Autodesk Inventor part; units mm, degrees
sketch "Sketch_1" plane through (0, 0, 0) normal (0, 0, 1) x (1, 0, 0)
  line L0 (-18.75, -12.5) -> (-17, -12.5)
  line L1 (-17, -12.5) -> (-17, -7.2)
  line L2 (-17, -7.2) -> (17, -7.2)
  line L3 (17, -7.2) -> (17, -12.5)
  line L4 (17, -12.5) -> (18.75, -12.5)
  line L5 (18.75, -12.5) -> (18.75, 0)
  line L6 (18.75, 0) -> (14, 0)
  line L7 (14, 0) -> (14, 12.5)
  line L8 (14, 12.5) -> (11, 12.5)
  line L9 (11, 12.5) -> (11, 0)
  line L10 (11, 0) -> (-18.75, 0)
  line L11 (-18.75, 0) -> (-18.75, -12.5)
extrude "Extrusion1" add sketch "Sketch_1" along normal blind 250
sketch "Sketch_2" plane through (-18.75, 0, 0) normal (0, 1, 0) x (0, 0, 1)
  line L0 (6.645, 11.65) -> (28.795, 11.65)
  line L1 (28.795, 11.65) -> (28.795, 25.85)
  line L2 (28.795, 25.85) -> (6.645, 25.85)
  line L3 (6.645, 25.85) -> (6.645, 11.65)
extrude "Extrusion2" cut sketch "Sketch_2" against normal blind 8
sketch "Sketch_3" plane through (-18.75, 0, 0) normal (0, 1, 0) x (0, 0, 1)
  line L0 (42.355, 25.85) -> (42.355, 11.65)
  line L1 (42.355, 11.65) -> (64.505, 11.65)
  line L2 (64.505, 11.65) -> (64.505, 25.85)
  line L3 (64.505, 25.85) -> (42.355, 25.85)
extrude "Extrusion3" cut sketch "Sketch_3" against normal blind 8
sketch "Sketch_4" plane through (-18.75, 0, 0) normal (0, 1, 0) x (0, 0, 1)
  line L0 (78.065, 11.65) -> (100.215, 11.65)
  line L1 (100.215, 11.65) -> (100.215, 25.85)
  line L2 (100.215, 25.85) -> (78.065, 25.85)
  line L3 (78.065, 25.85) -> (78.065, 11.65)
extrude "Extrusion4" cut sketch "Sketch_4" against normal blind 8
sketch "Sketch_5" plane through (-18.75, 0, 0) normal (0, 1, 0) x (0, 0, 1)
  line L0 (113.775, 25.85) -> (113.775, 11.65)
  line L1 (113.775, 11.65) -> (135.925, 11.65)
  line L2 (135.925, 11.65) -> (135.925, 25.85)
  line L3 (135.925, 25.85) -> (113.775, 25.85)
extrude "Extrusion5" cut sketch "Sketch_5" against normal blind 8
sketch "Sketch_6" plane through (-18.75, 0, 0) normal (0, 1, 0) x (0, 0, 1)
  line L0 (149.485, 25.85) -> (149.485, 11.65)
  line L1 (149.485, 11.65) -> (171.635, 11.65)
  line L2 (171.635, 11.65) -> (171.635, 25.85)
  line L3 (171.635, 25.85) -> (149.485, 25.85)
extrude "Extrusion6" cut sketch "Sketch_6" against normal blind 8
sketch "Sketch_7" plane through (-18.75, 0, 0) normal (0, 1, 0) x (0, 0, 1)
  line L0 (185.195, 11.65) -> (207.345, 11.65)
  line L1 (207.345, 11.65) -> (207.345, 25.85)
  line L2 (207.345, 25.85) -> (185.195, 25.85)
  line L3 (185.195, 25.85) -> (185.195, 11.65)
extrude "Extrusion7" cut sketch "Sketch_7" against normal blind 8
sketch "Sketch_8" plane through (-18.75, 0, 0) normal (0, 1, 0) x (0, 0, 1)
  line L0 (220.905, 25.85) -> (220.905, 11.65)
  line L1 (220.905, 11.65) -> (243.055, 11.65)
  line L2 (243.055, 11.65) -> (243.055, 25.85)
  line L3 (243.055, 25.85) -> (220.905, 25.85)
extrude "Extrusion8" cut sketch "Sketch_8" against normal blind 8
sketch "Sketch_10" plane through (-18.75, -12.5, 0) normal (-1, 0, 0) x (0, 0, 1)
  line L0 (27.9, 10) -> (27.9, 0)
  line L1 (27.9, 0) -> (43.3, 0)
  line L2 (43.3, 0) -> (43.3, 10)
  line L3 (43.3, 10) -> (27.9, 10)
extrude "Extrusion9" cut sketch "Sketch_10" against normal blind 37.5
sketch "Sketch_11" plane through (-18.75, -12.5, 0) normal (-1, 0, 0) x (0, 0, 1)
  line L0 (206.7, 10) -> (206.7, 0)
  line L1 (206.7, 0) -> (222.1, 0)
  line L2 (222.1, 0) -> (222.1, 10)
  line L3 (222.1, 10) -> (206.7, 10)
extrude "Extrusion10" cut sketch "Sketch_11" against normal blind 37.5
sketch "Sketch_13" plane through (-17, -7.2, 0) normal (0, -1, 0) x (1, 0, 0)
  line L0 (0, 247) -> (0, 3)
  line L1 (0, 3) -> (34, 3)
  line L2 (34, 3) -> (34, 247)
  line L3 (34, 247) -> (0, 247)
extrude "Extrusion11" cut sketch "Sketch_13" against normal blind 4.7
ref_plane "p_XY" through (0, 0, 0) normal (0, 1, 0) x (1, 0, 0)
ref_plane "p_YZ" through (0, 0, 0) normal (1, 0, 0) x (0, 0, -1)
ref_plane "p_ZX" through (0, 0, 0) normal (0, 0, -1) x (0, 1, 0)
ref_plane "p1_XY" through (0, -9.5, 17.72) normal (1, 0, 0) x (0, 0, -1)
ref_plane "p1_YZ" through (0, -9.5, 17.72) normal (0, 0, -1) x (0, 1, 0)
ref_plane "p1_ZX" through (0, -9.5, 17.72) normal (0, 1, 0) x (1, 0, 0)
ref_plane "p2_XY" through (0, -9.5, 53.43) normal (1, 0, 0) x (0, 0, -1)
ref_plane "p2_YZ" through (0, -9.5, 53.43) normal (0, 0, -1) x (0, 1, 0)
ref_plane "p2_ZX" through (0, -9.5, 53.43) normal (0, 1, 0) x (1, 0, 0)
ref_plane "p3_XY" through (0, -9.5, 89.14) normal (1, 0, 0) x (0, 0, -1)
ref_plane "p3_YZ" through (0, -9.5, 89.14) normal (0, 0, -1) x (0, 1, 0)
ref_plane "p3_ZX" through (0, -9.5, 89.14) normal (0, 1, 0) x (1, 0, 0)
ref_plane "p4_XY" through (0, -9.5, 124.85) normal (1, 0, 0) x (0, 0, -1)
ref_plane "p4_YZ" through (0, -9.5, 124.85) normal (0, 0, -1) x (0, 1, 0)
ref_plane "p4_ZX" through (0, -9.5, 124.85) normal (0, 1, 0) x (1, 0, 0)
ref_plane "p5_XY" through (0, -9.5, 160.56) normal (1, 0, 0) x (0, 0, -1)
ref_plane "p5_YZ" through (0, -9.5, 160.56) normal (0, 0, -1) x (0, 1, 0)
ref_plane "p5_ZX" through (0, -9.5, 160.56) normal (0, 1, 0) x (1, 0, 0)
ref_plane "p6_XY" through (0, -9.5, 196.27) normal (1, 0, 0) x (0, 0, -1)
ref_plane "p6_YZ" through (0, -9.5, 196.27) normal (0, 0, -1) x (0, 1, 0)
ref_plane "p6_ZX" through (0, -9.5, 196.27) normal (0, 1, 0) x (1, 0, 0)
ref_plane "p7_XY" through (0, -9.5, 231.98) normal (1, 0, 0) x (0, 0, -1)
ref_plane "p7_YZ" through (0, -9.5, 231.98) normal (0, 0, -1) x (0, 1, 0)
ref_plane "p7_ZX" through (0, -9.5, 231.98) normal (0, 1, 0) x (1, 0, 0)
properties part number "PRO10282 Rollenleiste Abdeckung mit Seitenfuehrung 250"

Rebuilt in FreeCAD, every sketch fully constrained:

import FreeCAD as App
import Part
import Sketcher
from FreeCAD import Vector
Q = App.Units.Quantity

doc = App.newDocument("Part")
body = doc.addObject("PartDesign::Body", "Body")

# Sketch on XY plane
sketch1 = body.newObject("Sketcher::SketchObject", "Sketch")
sketch1.AttachmentSupport = (doc.getObject("XY_Plane"), [""])
sketch1.MapMode = "FlatFace"
sketch1.addGeometry(Part.LineSegment(Vector(-18.8, 0, 0), Vector(-18.8, -12.5, 0)), False)
sketch1.addGeometry(Part.LineSegment(Vector(-18.8, -12.5, 0), Vector(-17, -12.5, 0)), False)
sketch1.addGeometry(Part.LineSegment(Vector(-17, -12.5, 0), Vector(-17, -7.2, 0)), False)
sketch1.addGeometry(Part.LineSegment(Vector(-17, -7.2, 0), Vector(17, -7.2, 0)), False)
sketch1.addGeometry(Part.LineSegment(Vector(17, -7.2, 0), Vector(17, -12.5, 0)), False)
sketch1.addGeometry(Part.LineSegment(Vector(17, -12.5, 0), Vector(18.8, -12.5, 0)), False)
sketch1.addGeometry(Part.LineSegment(Vector(18.8, -12.5, 0), Vector(18.8, 0, 0)), False)
sketch1.addGeometry(Part.LineSegment(Vector(18.8, 0, 0), Vector(14, 0, 0)), False)
sketch1.addGeometry(Part.LineSegment(Vector(14, 0, 0), Vector(14, 12.5, 0)), False)
sketch1.addGeometry(Part.LineSegment(Vector(14, 12.5, 0), Vector(11, 12.5, 0)), False)
sketch1.addGeometry(Part.LineSegment(Vector(11, 12.5, 0), Vector(11, 0, 0)), False)
sketch1.addGeometry(Part.LineSegment(Vector(11, 0, 0), Vector(-18.8, 0, 0)), False)
sketch1.addConstraint(Sketcher.Constraint("Coincident", 0, 2, 1, 1))
sketch1.addConstraint(Sketcher.Constraint("Coincident", 1, 2, 2, 1))
sketch1.addConstraint(Sketcher.Constraint("Coincident", 2, 2, 3, 1))
sketch1.addConstraint(Sketcher.Constraint("Coincident", 3, 2, 4, 1))
sketch1.addConstraint(Sketcher.Constraint("Coincident", 4, 2, 5, 1))
sketch1.addConstraint(Sketcher.Constraint("Coincident", 5, 2, 6, 1))
sketch1.addConstraint(Sketcher.Constraint("Coincident", 6, 2, 7, 1))
sketch1.addConstraint(Sketcher.Constraint("Coincident", 7, 2, 8, 1))
sketch1.addConstraint(Sketcher.Constraint("Coincident", 8, 2, 9, 1))
sketch1.addConstraint(Sketcher.Constraint("Coincident", 9, 2, 10, 1))
sketch1.addConstraint(Sketcher.Constraint("Coincident", 10, 2, 11, 1))
sketch1.addConstraint(Sketcher.Constraint("Coincident", 11, 2, 0, 1))
sketch1.addConstraint(Sketcher.Constraint("Vertical", 0))
sketch1.addConstraint(Sketcher.Constraint("Horizontal", 1))
sketch1.addConstraint(Sketcher.Constraint("Vertical", 2))
sketch1.addConstraint(Sketcher.Constraint("Horizontal", 3))
sketch1.addConstraint(Sketcher.Constraint("Vertical", 4))
sketch1.addConstraint(Sketcher.Constraint("Horizontal", 5))
sketch1.addConstraint(Sketcher.Constraint("Vertical", 6))
sketch1.addConstraint(Sketcher.Constraint("Horizontal", 7))
sketch1.addConstraint(Sketcher.Constraint("Vertical", 8))
sketch1.addConstraint(Sketcher.Constraint("Horizontal", 9))
sketch1.addConstraint(Sketcher.Constraint("Vertical", 10))
sketch1.addConstraint(Sketcher.Constraint("Horizontal", 11))
sketch1.addConstraint(Sketcher.Constraint("Symmetric", 6, 2, 11, 2, -1, 1))
sketch1.addConstraint(Sketcher.Constraint("Symmetric", 1, 2, 4, 2, -2))
sketch1.addConstraint(Sketcher.Constraint("PointOnObject", 6, 2, -1))
sketch1.addConstraint(Sketcher.Constraint("Equal", 6, 8))
sketch1.addConstraint(Sketcher.Constraint("DistanceX", 3, 1, 3, 2, Q("34 mm")))
sketch1.addConstraint(Sketcher.Constraint("DistanceX", 9, 2, 9, 1, Q("3 mm")))
sketch1.addConstraint(Sketcher.Constraint("DistanceY", 0, 2, 0, 1, Q("12.5 mm")))
sketch1.addConstraint(Sketcher.Constraint("DistanceY", 2, 1, 2, 2, Q("5.3 mm")))
sketch1.addConstraint(Sketcher.Constraint("DistanceX", -1, 1, 7, 2, Q("14 mm")))
sketch1.addConstraint(Sketcher.Constraint("DistanceX", 1, 1, 1, 2, Q("1.75 mm")))
pad1 = body.newObject("PartDesign::Pad", "Pad")
pad1.Profile = sketch1
pad1.Length = 250

# Sketch on XZ plane
sketch2 = body.newObject("Sketcher::SketchObject", "Sketch001")
sketch2.AttachmentSupport = (doc.getObject("XZ_Plane"), [""])
sketch2.MapMode = "FlatFace"
sketch2.addGeometry(Part.LineSegment(Vector(7, 7, 0), Vector(-7, 7, 0)), False)
sketch2.addGeometry(Part.LineSegment(Vector(-7, 7, 0), Vector(-7, 29, 0)), False)
sketch2.addGeometry(Part.LineSegment(Vector(-7, 29, 0), Vector(7, 29, 0)), False)
sketch2.addGeometry(Part.LineSegment(Vector(7, 29, 0), Vector(7, 7, 0)), False)
sketch2.addConstraint(Sketcher.Constraint("Coincident", 0, 2, 1, 1))
sketch2.addConstraint(Sketcher.Constraint("Coincident", 1, 2, 2, 1))
sketch2.addConstraint(Sketcher.Constraint("Coincident", 2, 2, 3, 1))
sketch2.addConstraint(Sketcher.Constraint("Coincident", 3, 2, 0, 1))
sketch2.addConstraint(Sketcher.Constraint("Horizontal", 0))
sketch2.addConstraint(Sketcher.Constraint("Vertical", 1))
sketch2.addConstraint(Sketcher.Constraint("Horizontal", 2))
sketch2.addConstraint(Sketcher.Constraint("Vertical", 3))
sketch2.addConstraint(Sketcher.Constraint("DistanceX", 0, 2, 0, 1, Q("14.2 mm")))
sketch2.addConstraint(Sketcher.Constraint("DistanceY", 1, 1, 1, 2, Q("22.15 mm")))
sketch2.addConstraint(Sketcher.Constraint("DistanceX", 0, 2, -1, 1, Q("7.1 mm")))
sketch2.addConstraint(Sketcher.Constraint("DistanceY", -1, 1, 0, 2, Q("6.645 mm")))
pocket1 = body.newObject("PartDesign::Pocket", "Pocket")
pocket1.Profile = sketch2
pocket1.Length = 8
pocket1.Reversed = True

# Sketch on XZ plane
sketch3 = body.newObject("Sketcher::SketchObject", "Sketch002")
sketch3.AttachmentSupport = (doc.getObject("XZ_Plane"), [""])
sketch3.MapMode = "FlatFace"
sketch3.addGeometry(Part.LineSegment(Vector(7, 65, 0), Vector(7, 42, 0)), False)
sketch3.addGeometry(Part.LineSegment(Vector(7, 42, 0), Vector(-7, 42, 0)), False)
sketch3.addGeometry(Part.LineSegment(Vector(-7, 42, 0), Vector(-7, 65, 0)), False)
sketch3.addGeometry(Part.LineSegment(Vector(-7, 65, 0), Vector(7, 65, 0)), False)
sketch3.addConstraint(Sketcher.Constraint("Coincident", 0, 2, 1, 1))
sketch3.addConstraint(Sketcher.Constraint("Coincident", 1, 2, 2, 1))
sketch3.addConstraint(Sketcher.Constraint("Coincident", 2, 2, 3, 1))
sketch3.addConstraint(Sketcher.Constraint("Coincident", 3, 2, 0, 1))
sketch3.addConstraint(Sketcher.Constraint("Vertical", 0))
sketch3.addConstraint(Sketcher.Constraint("Horizontal", 1))
sketch3.addConstraint(Sketcher.Constraint("Vertical", 2))
sketch3.addConstraint(Sketcher.Constraint("Horizontal", 3))
sketch3.addConstraint(Sketcher.Constraint("DistanceX", 1, 2, 1, 1, Q("14.2 mm")))
sketch3.addConstraint(Sketcher.Constraint("DistanceY", 0, 2, 0, 1, Q("22.15 mm")))
sketch3.addConstraint(Sketcher.Constraint("DistanceX", -1, 1, 0, 2, Q("7.1 mm")))
sketch3.addConstraint(Sketcher.Constraint("DistanceY", -1, 1, 0, 2, Q("42.355 mm")))
pocket2 = body.newObject("PartDesign::Pocket", "Pocket001")
pocket2.Profile = sketch3
pocket2.Length = 8
pocket2.Reversed = True

# Sketch on XZ plane
sketch4 = body.newObject("Sketcher::SketchObject", "Sketch003")
sketch4.AttachmentSupport = (doc.getObject("XZ_Plane"), [""])
sketch4.MapMode = "FlatFace"
sketch4.addGeometry(Part.LineSegment(Vector(7, 78, 0), Vector(-7, 78, 0)), False)
sketch4.addGeometry(Part.LineSegment(Vector(-7, 78, 0), Vector(-7, 100, 0)), False)
sketch4.addGeometry(Part.LineSegment(Vector(-7, 100, 0), Vector(7, 100, 0)), False)
sketch4.addGeometry(Part.LineSegment(Vector(7, 100, 0), Vector(7, 78, 0)), False)
sketch4.addConstraint(Sketcher.Constraint("Coincident", 0, 2, 1, 1))
sketch4.addConstraint(Sketcher.Constraint("Coincident", 1, 2, 2, 1))
sketch4.addConstraint(Sketcher.Constraint("Coincident", 2, 2, 3, 1))
sketch4.addConstraint(Sketcher.Constraint("Coincident", 3, 2, 0, 1))
sketch4.addConstraint(Sketcher.Constraint("Horizontal", 0))
sketch4.addConstraint(Sketcher.Constraint("Vertical", 1))
sketch4.addConstraint(Sketcher.Constraint("Horizontal", 2))
sketch4.addConstraint(Sketcher.Constraint("Vertical", 3))
sketch4.addConstraint(Sketcher.Constraint("DistanceX", 0, 2, 0, 1, Q("14.2 mm")))
sketch4.addConstraint(Sketcher.Constraint("DistanceY", 1, 1, 1, 2, Q("22.15 mm")))
sketch4.addConstraint(Sketcher.Constraint("DistanceX", 0, 2, -1, 1, Q("7.1 mm")))
sketch4.addConstraint(Sketcher.Constraint("DistanceY", -1, 1, 0, 2, Q("78.065 mm")))
pocket3 = body.newObject("PartDesign::Pocket", "Pocket002")
pocket3.Profile = sketch4
pocket3.Length = 8
pocket3.Reversed = True

# Sketch on XZ plane
sketch5 = body.newObject("Sketcher::SketchObject", "Sketch004")
sketch5.AttachmentSupport = (doc.getObject("XZ_Plane"), [""])
sketch5.MapMode = "FlatFace"
sketch5.addGeometry(Part.LineSegment(Vector(7, 136, 0), Vector(7, 114, 0)), False)
sketch5.addGeometry(Part.LineSegment(Vector(7, 114, 0), Vector(-7, 114, 0)), False)
sketch5.addGeometry(Part.LineSegment(Vector(-7, 114, 0), Vector(-7, 136, 0)), False)
sketch5.addGeometry(Part.LineSegment(Vector(-7, 136, 0), Vector(7, 136, 0)), False)
sketch5.addConstraint(Sketcher.Constraint("Coincident", 0, 2, 1, 1))
sketch5.addConstraint(Sketcher.Constraint("Coincident", 1, 2, 2, 1))
sketch5.addConstraint(Sketcher.Constraint("Coincident", 2, 2, 3, 1))
sketch5.addConstraint(Sketcher.Constraint("Coincident", 3, 2, 0, 1))
sketch5.addConstraint(Sketcher.Constraint("Vertical", 0))
sketch5.addConstraint(Sketcher.Constraint("Horizontal", 1))
sketch5.addConstraint(Sketcher.Constraint("Vertical", 2))
sketch5.addConstraint(Sketcher.Constraint("Horizontal", 3))
sketch5.addConstraint(Sketcher.Constraint("DistanceX", 1, 2, 1, 1, Q("14.2 mm")))
sketch5.addConstraint(Sketcher.Constraint("DistanceY", 0, 2, 0, 1, Q("22.15 mm")))
sketch5.addConstraint(Sketcher.Constraint("DistanceX", -1, 1, 0, 2, Q("7.1 mm")))
sketch5.addConstraint(Sketcher.Constraint("DistanceY", -1, 1, 0, 2, Q("113.775 mm")))
pocket4 = body.newObject("PartDesign::Pocket", "Pocket003")
pocket4.Profile = sketch5
pocket4.Length = 8
pocket4.Reversed = True

# Sketch on XZ plane
sketch6 = body.newObject("Sketcher::SketchObject", "Sketch005")
sketch6.AttachmentSupport = (doc.getObject("XZ_Plane"), [""])
sketch6.MapMode = "FlatFace"
sketch6.addGeometry(Part.LineSegment(Vector(7, 172, 0), Vector(7, 149, 0)), False)
sketch6.addGeometry(Part.LineSegment(Vector(7, 149, 0), Vector(-7, 149, 0)), False)
sketch6.addGeometry(Part.LineSegment(Vector(-7, 149, 0), Vector(-7, 172, 0)), False)
sketch6.addGeometry(Part.LineSegment(Vector(-7, 172, 0), Vector(7, 172, 0)), False)
sketch6.addConstraint(Sketcher.Constraint("Coincident", 0, 2, 1, 1))
sketch6.addConstraint(Sketcher.Constraint("Coincident", 1, 2, 2, 1))
sketch6.addConstraint(Sketcher.Constraint("Coincident", 2, 2, 3, 1))
sketch6.addConstraint(Sketcher.Constraint("Coincident", 3, 2, 0, 1))
sketch6.addConstraint(Sketcher.Constraint("Vertical", 0))
sketch6.addConstraint(Sketcher.Constraint("Horizontal", 1))
sketch6.addConstraint(Sketcher.Constraint("Vertical", 2))
sketch6.addConstraint(Sketcher.Constraint("Horizontal", 3))
sketch6.addConstraint(Sketcher.Constraint("DistanceX", 1, 2, 1, 1, Q("14.2 mm")))
sketch6.addConstraint(Sketcher.Constraint("DistanceY", 0, 2, 0, 1, Q("22.15 mm")))
sketch6.addConstraint(Sketcher.Constraint("DistanceX", -1, 1, 0, 2, Q("7.1 mm")))
sketch6.addConstraint(Sketcher.Constraint("DistanceY", -1, 1, 0, 2, Q("149.485 mm")))
pocket5 = body.newObject("PartDesign::Pocket", "Pocket004")
pocket5.Profile = sketch6
pocket5.Length = 8
pocket5.Reversed = True

# Sketch on XZ plane
sketch7 = body.newObject("Sketcher::SketchObject", "Sketch006")
sketch7.AttachmentSupport = (doc.getObject("XZ_Plane"), [""])
sketch7.MapMode = "FlatFace"
sketch7.addGeometry(Part.LineSegment(Vector(7, 185, 0), Vector(-7, 185, 0)), False)
sketch7.addGeometry(Part.LineSegment(Vector(-7, 185, 0), Vector(-7, 207, 0)), False)
sketch7.addGeometry(Part.LineSegment(Vector(-7, 207, 0), Vector(7, 207, 0)), False)
sketch7.addGeometry(Part.LineSegment(Vector(7, 207, 0), Vector(7, 185, 0)), False)
sketch7.addConstraint(Sketcher.Constraint("Coincident", 0, 2, 1, 1))
sketch7.addConstraint(Sketcher.Constraint("Coincident", 1, 2, 2, 1))
sketch7.addConstraint(Sketcher.Constraint("Coincident", 2, 2, 3, 1))
sketch7.addConstraint(Sketcher.Constraint("Coincident", 3, 2, 0, 1))
sketch7.addConstraint(Sketcher.Constraint("Horizontal", 0))
sketch7.addConstraint(Sketcher.Constraint("Vertical", 1))
sketch7.addConstraint(Sketcher.Constraint("Horizontal", 2))
sketch7.addConstraint(Sketcher.Constraint("Vertical", 3))
sketch7.addConstraint(Sketcher.Constraint("DistanceX", 0, 2, 0, 1, Q("14.2 mm")))
sketch7.addConstraint(Sketcher.Constraint("DistanceY", 1, 1, 1, 2, Q("22.15 mm")))
sketch7.addConstraint(Sketcher.Constraint("DistanceX", 0, 2, -1, 1, Q("7.1 mm")))
sketch7.addConstraint(Sketcher.Constraint("DistanceY", -1, 1, 0, 2, Q("185.195 mm")))
pocket6 = body.newObject("PartDesign::Pocket", "Pocket005")
pocket6.Profile = sketch7
pocket6.Length = 8
pocket6.Reversed = True

# Sketch on XZ plane
sketch8 = body.newObject("Sketcher::SketchObject", "Sketch007")
sketch8.AttachmentSupport = (doc.getObject("XZ_Plane"), [""])
sketch8.MapMode = "FlatFace"
sketch8.addGeometry(Part.LineSegment(Vector(7, 243, 0), Vector(7, 221, 0)), False)
sketch8.addGeometry(Part.LineSegment(Vector(7, 221, 0), Vector(-7, 221, 0)), False)
sketch8.addGeometry(Part.LineSegment(Vector(-7, 221, 0), Vector(-7, 243, 0)), False)
sketch8.addGeometry(Part.LineSegment(Vector(-7, 243, 0), Vector(7, 243, 0)), False)
sketch8.addConstraint(Sketcher.Constraint("Coincident", 0, 2, 1, 1))
sketch8.addConstraint(Sketcher.Constraint("Coincident", 1, 2, 2, 1))
sketch8.addConstraint(Sketcher.Constraint("Coincident", 2, 2, 3, 1))
sketch8.addConstraint(Sketcher.Constraint("Coincident", 3, 2, 0, 1))
sketch8.addConstraint(Sketcher.Constraint("Vertical", 0))
sketch8.addConstraint(Sketcher.Constraint("Horizontal", 1))
sketch8.addConstraint(Sketcher.Constraint("Vertical", 2))
sketch8.addConstraint(Sketcher.Constraint("Horizontal", 3))
sketch8.addConstraint(Sketcher.Constraint("DistanceX", 1, 2, 1, 1, Q("14.2 mm")))
sketch8.addConstraint(Sketcher.Constraint("DistanceY", 0, 2, 0, 1, Q("22.15 mm")))
sketch8.addConstraint(Sketcher.Constraint("DistanceX", -1, 1, 0, 2, Q("7.1 mm")))
sketch8.addConstraint(Sketcher.Constraint("DistanceY", -1, 1, 0, 2, Q("220.905 mm")))
pocket7 = body.newObject("PartDesign::Pocket", "Pocket006")
pocket7.Profile = sketch8
pocket7.Length = 8
pocket7.Reversed = True

# Sketch on YZ plane
sketch9 = body.newObject("Sketcher::SketchObject", "Sketch008")
sketch9.AttachmentSupport = (doc.getObject("YZ_Plane"), [""])
sketch9.MapMode = "FlatFace"
sketch9.AttachmentOffset = App.Placement(Vector(0, 0, -18.75), App.Rotation())
sketch9.addGeometry(Part.LineSegment(Vector(-2, 43, 0), Vector(-2, 28, 0)), False)
sketch9.addGeometry(Part.LineSegment(Vector(-2, 28, 0), Vector(-12, 28, 0)), False)
sketch9.addGeometry(Part.LineSegment(Vector(-12, 28, 0), Vector(-12, 43, 0)), False)
sketch9.addGeometry(Part.LineSegment(Vector(-12, 43, 0), Vector(-2, 43, 0)), False)
sketch9.addConstraint(Sketcher.Constraint("Coincident", 0, 2, 1, 1))
sketch9.addConstraint(Sketcher.Constraint("Coincident", 1, 2, 2, 1))
sketch9.addConstraint(Sketcher.Constraint("Coincident", 2, 2, 3, 1))
sketch9.addConstraint(Sketcher.Constraint("Coincident", 3, 2, 0, 1))
sketch9.addConstraint(Sketcher.Constraint("Vertical", 0))
sketch9.addConstraint(Sketcher.Constraint("Horizontal", 1))
sketch9.addConstraint(Sketcher.Constraint("Vertical", 2))
sketch9.addConstraint(Sketcher.Constraint("Horizontal", 3))
sketch9.addConstraint(Sketcher.Constraint("DistanceX", 1, 2, 1, 1, Q("10 mm")))
sketch9.addConstraint(Sketcher.Constraint("DistanceY", 0, 2, 0, 1, Q("15.4 mm")))
sketch9.addConstraint(Sketcher.Constraint("DistanceX", 0, 2, -1, 1, Q("2.5 mm")))
sketch9.addConstraint(Sketcher.Constraint("DistanceY", -1, 1, 0, 2, Q("27.9 mm")))
pocket8 = body.newObject("PartDesign::Pocket", "Pocket007")
pocket8.Profile = sketch9
pocket8.Length = 37.5
pocket8.Reversed = True

# Sketch on YZ plane
sketch10 = body.newObject("Sketcher::SketchObject", "Sketch009")
sketch10.AttachmentSupport = (doc.getObject("YZ_Plane"), [""])
sketch10.MapMode = "FlatFace"
sketch10.AttachmentOffset = App.Placement(Vector(0, 0, -18.75), App.Rotation())
sketch10.addGeometry(Part.LineSegment(Vector(-2, 222, 0), Vector(-2, 207, 0)), False)
sketch10.addGeometry(Part.LineSegment(Vector(-2, 207, 0), Vector(-12, 207, 0)), False)
sketch10.addGeometry(Part.LineSegment(Vector(-12, 207, 0), Vector(-12, 222, 0)), False)
sketch10.addGeometry(Part.LineSegment(Vector(-12, 222, 0), Vector(-2, 222, 0)), False)
sketch10.addConstraint(Sketcher.Constraint("Coincident", 0, 2, 1, 1))
sketch10.addConstraint(Sketcher.Constraint("Coincident", 1, 2, 2, 1))
sketch10.addConstraint(Sketcher.Constraint("Coincident", 2, 2, 3, 1))
sketch10.addConstraint(Sketcher.Constraint("Coincident", 3, 2, 0, 1))
sketch10.addConstraint(Sketcher.Constraint("Vertical", 0))
sketch10.addConstraint(Sketcher.Constraint("Horizontal", 1))
sketch10.addConstraint(Sketcher.Constraint("Vertical", 2))
sketch10.addConstraint(Sketcher.Constraint("Horizontal", 3))
sketch10.addConstraint(Sketcher.Constraint("DistanceX", 1, 2, 1, 1, Q("10 mm")))
sketch10.addConstraint(Sketcher.Constraint("DistanceY", 0, 2, 0, 1, Q("15.4 mm")))
sketch10.addConstraint(Sketcher.Constraint("DistanceX", 0, 2, -1, 1, Q("2.5 mm")))
sketch10.addConstraint(Sketcher.Constraint("DistanceY", -1, 1, 0, 2, Q("206.7 mm")))
pocket9 = body.newObject("PartDesign::Pocket", "Pocket008")
pocket9.Profile = sketch10
pocket9.Length = 37.5
pocket9.Reversed = True

# Sketch on XZ plane
sketch11 = body.newObject("Sketcher::SketchObject", "Sketch010")
sketch11.AttachmentSupport = (doc.getObject("XZ_Plane"), [""])
sketch11.MapMode = "FlatFace"
sketch11.AttachmentOffset = App.Placement(Vector(0, 0, 7.2), App.Rotation())
sketch11.addGeometry(Part.LineSegment(Vector(17, 247, 0), Vector(-17, 247, 0)), False)
sketch11.addGeometry(Part.LineSegment(Vector(-17, 247, 0), Vector(-17, 3, 0)), False)
sketch11.addGeometry(Part.LineSegment(Vector(-17, 3, 0), Vector(17, 3, 0)), False)
sketch11.addGeometry(Part.LineSegment(Vector(17, 3, 0), Vector(17, 247, 0)), False)
sketch11.addConstraint(Sketcher.Constraint("Coincident", 0, 2, 1, 1))
sketch11.addConstraint(Sketcher.Constraint("Coincident", 1, 2, 2, 1))
sketch11.addConstraint(Sketcher.Constraint("Coincident", 2, 2, 3, 1))
sketch11.addConstraint(Sketcher.Constraint("Coincident", 3, 2, 0, 1))
sketch11.addConstraint(Sketcher.Constraint("Horizontal", 0))
sketch11.addConstraint(Sketcher.Constraint("Vertical", 1))
sketch11.addConstraint(Sketcher.Constraint("Horizontal", 2))
sketch11.addConstraint(Sketcher.Constraint("Vertical", 3))
sketch11.addConstraint(Sketcher.Constraint("DistanceX", 0, 2, 0, 1, Q("34 mm")))
sketch11.addConstraint(Sketcher.Constraint("DistanceY", 1, 2, 1, 1, Q("244 mm")))
sketch11.addConstraint(Sketcher.Constraint("DistanceX", 0, 2, -1, 1, Q("17 mm")))
sketch11.addConstraint(Sketcher.Constraint("DistanceY", -1, 1, 0, 2, Q("247 mm")))
pocket10 = body.newObject("PartDesign::Pocket", "Pocket009")
pocket10.Profile = sketch11
pocket10.Length = 4.7

doc.recompute()
